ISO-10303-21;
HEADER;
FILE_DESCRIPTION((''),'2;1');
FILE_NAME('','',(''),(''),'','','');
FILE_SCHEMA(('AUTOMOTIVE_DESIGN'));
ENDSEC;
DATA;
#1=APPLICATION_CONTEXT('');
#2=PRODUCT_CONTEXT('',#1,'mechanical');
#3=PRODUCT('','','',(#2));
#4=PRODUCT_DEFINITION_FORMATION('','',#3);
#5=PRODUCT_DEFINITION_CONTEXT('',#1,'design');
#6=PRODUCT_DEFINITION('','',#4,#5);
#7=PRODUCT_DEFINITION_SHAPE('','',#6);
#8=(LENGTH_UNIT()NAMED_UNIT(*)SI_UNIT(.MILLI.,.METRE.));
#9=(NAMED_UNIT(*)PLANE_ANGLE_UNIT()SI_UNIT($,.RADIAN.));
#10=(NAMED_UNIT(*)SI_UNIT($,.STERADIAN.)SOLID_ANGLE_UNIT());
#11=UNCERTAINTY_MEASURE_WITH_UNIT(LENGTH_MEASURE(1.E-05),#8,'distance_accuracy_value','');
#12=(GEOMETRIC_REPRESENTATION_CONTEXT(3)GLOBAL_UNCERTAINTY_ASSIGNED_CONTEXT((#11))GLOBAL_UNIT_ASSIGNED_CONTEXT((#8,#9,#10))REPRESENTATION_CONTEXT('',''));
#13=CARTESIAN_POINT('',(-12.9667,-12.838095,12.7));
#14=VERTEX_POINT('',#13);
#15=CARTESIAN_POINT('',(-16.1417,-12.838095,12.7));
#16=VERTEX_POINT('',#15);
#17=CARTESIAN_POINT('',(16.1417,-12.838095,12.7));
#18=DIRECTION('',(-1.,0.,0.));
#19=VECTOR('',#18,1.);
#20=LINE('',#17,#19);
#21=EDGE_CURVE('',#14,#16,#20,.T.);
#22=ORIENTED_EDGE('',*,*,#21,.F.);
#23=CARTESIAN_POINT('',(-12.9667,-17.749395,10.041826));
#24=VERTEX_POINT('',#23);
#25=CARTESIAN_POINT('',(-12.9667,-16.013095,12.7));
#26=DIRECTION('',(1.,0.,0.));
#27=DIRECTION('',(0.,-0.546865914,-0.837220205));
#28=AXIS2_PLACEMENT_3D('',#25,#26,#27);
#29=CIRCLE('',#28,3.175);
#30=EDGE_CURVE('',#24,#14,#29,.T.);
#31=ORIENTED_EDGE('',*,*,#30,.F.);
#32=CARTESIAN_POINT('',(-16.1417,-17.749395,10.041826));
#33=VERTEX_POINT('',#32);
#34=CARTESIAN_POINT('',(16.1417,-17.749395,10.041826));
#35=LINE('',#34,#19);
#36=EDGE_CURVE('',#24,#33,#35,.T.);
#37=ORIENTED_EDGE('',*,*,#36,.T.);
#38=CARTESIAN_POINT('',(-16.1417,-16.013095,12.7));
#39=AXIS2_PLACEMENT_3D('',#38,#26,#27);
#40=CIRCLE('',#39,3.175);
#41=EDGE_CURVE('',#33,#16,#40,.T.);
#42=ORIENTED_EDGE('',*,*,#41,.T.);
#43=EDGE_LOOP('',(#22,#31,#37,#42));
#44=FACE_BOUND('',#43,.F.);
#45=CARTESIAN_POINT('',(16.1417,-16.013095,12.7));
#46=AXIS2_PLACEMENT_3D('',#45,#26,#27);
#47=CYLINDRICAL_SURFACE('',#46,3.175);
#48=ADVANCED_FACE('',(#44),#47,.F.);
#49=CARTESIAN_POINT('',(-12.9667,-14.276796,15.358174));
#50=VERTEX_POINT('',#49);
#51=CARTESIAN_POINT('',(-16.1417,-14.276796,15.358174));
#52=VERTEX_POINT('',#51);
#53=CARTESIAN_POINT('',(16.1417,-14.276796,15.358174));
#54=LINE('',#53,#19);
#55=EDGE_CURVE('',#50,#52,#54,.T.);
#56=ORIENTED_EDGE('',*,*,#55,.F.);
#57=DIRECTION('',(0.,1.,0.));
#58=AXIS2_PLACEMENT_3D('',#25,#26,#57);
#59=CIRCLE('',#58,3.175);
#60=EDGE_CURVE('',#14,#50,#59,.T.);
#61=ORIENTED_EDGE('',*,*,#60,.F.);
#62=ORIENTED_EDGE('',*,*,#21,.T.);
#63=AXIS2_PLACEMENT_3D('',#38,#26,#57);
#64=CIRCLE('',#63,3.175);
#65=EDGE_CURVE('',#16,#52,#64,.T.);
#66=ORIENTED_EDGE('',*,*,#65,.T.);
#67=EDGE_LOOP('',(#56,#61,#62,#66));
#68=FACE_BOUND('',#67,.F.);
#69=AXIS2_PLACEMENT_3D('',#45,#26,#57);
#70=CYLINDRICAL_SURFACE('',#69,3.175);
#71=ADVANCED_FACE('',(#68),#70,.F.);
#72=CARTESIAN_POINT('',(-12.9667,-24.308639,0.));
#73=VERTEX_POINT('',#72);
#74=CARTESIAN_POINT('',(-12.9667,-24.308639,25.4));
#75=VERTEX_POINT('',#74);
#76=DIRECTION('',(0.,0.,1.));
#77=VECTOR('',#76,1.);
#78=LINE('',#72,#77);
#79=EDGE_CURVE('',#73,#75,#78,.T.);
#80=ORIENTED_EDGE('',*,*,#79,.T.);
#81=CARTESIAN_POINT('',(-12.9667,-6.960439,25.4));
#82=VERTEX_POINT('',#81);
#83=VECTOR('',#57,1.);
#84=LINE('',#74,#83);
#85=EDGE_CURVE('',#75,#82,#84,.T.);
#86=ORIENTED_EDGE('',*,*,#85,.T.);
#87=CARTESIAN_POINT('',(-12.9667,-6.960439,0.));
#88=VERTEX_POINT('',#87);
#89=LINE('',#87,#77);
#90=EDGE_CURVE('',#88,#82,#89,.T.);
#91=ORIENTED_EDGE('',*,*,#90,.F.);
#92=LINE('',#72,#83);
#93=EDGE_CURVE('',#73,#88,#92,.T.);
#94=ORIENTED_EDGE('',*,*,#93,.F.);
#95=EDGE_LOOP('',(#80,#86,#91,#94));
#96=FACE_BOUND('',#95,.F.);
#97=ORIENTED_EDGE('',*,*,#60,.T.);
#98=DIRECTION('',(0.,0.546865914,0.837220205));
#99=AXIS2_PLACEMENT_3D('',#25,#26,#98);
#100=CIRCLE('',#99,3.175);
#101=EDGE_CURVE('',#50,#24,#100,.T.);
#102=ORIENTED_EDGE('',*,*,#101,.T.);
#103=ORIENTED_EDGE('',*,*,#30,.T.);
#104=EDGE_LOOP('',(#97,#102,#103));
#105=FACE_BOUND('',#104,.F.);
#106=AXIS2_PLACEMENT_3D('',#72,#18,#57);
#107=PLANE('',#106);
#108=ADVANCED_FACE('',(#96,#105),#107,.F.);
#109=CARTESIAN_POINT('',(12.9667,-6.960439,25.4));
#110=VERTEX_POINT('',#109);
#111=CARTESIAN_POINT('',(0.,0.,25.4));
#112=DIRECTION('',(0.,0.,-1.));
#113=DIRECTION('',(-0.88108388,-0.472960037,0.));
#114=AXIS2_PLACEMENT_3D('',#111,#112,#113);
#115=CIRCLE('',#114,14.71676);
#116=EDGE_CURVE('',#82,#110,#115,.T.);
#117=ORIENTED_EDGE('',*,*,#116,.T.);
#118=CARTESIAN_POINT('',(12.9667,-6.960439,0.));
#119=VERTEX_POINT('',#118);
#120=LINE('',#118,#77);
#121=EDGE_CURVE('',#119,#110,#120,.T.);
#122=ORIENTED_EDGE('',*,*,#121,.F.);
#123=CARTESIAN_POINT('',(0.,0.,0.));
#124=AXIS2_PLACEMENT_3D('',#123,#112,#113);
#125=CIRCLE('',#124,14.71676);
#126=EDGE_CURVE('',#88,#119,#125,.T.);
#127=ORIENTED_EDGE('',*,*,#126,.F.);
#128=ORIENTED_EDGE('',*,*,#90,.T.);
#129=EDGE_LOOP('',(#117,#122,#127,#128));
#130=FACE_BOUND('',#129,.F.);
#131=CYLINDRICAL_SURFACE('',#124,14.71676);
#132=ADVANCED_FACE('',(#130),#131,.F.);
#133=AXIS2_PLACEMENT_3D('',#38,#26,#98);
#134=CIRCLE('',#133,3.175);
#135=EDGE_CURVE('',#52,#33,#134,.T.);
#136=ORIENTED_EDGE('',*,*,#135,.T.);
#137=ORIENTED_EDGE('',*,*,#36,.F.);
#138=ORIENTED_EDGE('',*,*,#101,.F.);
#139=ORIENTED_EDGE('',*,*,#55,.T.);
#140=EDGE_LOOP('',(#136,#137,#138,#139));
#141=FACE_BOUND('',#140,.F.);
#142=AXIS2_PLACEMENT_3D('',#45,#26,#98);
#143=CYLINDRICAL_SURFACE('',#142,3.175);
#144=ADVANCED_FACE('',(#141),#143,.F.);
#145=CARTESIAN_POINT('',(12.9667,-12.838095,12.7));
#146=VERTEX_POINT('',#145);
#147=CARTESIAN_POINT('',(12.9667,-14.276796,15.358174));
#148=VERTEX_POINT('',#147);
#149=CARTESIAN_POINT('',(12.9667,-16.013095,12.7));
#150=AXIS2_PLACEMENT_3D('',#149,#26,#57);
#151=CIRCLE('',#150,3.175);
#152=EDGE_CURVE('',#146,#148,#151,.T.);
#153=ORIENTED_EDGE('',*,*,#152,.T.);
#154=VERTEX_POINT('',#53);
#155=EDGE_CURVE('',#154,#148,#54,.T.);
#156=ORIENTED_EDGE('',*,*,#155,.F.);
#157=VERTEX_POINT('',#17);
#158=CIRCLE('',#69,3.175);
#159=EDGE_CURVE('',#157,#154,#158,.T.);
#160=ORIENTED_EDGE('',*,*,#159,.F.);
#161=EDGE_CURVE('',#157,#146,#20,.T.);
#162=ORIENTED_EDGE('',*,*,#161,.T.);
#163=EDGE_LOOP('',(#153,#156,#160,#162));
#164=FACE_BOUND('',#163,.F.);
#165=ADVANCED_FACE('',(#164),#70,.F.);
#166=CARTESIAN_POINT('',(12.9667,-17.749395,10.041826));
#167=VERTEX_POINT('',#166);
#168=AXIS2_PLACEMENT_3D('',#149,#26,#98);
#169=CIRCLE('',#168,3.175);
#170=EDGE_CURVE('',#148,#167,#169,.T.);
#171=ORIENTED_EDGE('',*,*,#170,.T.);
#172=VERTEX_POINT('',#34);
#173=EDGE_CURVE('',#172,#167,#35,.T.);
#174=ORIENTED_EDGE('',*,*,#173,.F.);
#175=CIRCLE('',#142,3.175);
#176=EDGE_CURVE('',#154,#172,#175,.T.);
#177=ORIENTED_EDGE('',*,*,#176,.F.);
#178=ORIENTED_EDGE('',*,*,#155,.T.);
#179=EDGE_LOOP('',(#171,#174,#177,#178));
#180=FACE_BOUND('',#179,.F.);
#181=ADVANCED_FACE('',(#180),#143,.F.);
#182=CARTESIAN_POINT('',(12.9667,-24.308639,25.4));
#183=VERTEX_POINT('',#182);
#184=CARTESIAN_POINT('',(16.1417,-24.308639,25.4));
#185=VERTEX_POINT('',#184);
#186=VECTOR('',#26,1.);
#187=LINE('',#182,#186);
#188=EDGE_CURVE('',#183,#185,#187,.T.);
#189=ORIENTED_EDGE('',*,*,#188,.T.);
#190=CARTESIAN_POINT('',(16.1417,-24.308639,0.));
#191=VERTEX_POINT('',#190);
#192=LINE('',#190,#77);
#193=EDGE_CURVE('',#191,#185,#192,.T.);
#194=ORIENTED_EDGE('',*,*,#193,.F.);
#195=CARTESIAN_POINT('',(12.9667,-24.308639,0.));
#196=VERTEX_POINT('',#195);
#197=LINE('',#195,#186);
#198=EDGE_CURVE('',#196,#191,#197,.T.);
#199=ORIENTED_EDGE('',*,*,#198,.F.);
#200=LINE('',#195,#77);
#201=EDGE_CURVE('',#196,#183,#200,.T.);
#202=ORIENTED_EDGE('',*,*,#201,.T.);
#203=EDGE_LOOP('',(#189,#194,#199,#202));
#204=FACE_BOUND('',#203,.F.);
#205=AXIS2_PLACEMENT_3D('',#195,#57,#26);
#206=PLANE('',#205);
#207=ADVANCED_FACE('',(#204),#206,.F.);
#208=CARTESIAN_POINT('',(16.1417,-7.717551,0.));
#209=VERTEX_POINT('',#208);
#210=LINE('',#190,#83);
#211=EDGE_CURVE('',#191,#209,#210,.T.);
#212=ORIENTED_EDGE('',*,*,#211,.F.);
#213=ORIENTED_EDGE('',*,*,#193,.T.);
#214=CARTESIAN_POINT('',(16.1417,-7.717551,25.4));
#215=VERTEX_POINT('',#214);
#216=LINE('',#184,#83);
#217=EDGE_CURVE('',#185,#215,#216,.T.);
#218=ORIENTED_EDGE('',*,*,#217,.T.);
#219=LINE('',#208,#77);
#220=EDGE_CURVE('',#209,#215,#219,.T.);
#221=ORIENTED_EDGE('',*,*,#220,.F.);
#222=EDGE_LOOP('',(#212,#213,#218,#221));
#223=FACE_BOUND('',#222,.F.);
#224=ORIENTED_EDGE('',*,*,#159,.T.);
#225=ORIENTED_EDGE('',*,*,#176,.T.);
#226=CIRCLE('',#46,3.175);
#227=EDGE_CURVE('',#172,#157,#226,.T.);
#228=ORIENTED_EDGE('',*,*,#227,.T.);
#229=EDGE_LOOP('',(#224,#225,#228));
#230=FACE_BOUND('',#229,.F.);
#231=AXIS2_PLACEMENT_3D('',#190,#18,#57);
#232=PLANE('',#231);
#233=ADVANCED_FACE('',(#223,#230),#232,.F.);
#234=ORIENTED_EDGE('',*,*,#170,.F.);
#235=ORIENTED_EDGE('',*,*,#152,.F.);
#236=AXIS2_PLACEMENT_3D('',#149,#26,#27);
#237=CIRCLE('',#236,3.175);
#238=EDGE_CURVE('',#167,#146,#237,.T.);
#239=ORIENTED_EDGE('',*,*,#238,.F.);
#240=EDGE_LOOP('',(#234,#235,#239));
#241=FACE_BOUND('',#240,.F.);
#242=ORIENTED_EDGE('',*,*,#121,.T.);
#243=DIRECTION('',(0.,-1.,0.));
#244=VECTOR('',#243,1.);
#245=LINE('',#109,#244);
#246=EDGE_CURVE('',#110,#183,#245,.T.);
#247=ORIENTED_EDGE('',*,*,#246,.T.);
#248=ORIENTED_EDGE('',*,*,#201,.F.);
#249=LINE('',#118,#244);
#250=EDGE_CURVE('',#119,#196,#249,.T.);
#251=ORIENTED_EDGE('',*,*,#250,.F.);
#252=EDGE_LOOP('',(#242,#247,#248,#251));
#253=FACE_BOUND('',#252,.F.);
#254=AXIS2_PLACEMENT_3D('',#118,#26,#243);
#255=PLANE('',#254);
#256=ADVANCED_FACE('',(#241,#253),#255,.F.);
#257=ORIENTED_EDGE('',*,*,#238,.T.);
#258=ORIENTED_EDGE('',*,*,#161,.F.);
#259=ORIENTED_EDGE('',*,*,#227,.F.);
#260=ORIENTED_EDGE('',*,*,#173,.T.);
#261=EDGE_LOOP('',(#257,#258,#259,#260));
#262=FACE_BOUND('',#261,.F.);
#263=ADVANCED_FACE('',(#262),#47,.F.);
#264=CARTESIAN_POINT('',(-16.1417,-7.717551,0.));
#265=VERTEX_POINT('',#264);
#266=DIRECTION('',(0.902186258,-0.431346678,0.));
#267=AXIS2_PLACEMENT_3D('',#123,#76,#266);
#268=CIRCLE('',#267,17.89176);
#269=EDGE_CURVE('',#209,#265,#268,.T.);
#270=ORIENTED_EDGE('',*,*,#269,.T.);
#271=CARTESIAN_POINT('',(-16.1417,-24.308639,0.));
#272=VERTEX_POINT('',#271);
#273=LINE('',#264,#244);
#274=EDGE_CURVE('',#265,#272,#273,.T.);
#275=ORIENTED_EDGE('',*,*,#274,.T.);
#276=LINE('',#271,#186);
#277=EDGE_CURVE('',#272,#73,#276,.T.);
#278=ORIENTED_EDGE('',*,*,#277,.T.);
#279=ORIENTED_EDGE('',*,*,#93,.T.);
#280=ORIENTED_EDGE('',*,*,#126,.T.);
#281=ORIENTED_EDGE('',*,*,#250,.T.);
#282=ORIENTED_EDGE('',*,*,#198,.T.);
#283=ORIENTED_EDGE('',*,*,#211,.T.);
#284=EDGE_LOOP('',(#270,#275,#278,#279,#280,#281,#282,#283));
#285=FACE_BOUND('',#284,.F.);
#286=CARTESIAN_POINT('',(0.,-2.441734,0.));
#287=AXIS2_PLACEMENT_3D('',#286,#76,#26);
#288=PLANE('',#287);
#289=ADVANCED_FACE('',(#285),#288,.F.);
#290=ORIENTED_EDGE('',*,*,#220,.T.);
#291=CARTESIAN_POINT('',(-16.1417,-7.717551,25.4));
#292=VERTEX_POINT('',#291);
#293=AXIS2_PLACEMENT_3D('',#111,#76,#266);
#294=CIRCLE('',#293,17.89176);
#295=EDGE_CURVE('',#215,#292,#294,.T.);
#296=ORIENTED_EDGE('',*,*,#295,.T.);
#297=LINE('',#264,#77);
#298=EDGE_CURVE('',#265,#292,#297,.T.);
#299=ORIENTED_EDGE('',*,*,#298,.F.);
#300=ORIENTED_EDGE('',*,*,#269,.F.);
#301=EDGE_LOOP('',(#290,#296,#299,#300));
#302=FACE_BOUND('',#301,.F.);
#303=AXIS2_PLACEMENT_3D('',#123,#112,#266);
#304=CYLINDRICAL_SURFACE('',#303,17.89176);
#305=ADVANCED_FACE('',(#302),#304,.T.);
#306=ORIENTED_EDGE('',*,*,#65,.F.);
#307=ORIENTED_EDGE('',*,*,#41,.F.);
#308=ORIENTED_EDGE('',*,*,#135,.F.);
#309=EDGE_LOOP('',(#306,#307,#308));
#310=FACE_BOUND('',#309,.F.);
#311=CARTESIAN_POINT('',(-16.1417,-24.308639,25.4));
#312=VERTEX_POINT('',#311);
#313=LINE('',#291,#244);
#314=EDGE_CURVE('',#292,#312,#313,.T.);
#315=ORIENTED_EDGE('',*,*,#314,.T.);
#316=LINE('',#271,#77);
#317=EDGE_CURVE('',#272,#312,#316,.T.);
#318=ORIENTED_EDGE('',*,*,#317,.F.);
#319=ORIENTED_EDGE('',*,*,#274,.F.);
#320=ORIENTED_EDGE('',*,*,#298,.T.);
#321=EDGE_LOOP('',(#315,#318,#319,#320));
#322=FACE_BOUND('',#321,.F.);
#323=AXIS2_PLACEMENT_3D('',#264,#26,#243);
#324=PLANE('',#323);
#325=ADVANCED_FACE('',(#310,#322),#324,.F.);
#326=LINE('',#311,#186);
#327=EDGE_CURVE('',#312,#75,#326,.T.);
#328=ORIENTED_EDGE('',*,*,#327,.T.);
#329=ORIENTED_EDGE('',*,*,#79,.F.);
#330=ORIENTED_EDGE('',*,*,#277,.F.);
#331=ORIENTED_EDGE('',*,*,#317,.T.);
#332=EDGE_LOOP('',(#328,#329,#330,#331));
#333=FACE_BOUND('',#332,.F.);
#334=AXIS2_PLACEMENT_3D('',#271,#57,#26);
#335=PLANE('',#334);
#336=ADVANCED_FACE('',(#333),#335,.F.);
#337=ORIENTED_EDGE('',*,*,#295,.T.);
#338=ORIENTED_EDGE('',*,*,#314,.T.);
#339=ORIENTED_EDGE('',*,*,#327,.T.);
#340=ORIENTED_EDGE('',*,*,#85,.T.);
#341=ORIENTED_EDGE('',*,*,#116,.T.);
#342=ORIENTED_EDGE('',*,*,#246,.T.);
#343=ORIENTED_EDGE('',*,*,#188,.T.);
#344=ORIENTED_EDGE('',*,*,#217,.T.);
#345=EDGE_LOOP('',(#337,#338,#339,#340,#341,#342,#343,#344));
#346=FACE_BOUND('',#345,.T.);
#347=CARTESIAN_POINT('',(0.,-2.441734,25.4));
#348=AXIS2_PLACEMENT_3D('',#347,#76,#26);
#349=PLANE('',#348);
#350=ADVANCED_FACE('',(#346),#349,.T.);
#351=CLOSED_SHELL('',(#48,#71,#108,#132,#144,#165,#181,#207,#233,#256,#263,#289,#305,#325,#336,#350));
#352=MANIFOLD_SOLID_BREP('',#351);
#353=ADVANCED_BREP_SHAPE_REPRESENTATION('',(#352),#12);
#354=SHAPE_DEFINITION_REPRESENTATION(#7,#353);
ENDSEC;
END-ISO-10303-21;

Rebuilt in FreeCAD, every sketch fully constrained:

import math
import FreeCAD as App
import Part
import Sketcher
from FreeCAD import Vector
Q = App.Units.Quantity

doc = App.newDocument("Part")
body = doc.addObject("PartDesign::Body", "Body")

# Sketch on XY plane
sketch1 = body.newObject("Sketcher::SketchObject", "Sketch")
sketch1.AttachmentSupport = (doc.getObject("XY_Plane"), [""])
sketch1.MapMode = "FlatFace"
sketch1.addGeometry(Part.ArcOfCircle(Part.Circle(Vector(0, 0, 0), Vector(0, 0, 1), 14.71676), math.radians(-28.226611), math.radians(208.226611)), False)
sketch1.addGeometry(Part.LineSegment(Vector(12.9667, -6.960439, 0), Vector(12.9667, -24.308639, 0)), False)
sketch1.addGeometry(Part.LineSegment(Vector(12.9667, -24.308639, 0), Vector(16.1417, -24.308639, 0)), False)
sketch1.addGeometry(Part.LineSegment(Vector(16.1417, -24.308639, 0), Vector(16.1417, -7.717551, 0)), False)
sketch1.addGeometry(Part.ArcOfCircle(Part.Circle(Vector(0, 0, 0), Vector(0, 0, 1), 17.89176), math.radians(-25.553054), math.radians(205.553054)), False)
sketch1.addGeometry(Part.LineSegment(Vector(-16.1417, -7.717551, 0), Vector(-16.1417, -24.308639, 0)), False)
sketch1.addGeometry(Part.LineSegment(Vector(-16.1417, -24.308639, 0), Vector(-12.9667, -24.308639, 0)), False)
sketch1.addGeometry(Part.LineSegment(Vector(-12.9667, -24.308639, 0), Vector(-12.9667, -6.960439, 0)), False)
sketch1.addConstraint(Sketcher.Constraint("Coincident", 0, 1, 1, 1))
sketch1.addConstraint(Sketcher.Constraint("Coincident", 1, 2, 2, 1))
sketch1.addConstraint(Sketcher.Constraint("Coincident", 2, 2, 3, 1))
sketch1.addConstraint(Sketcher.Constraint("Coincident", 3, 2, 4, 1))
sketch1.addConstraint(Sketcher.Constraint("Coincident", 4, 2, 5, 1))
sketch1.addConstraint(Sketcher.Constraint("Coincident", 5, 2, 6, 1))
sketch1.addConstraint(Sketcher.Constraint("Coincident", 6, 2, 7, 1))
sketch1.addConstraint(Sketcher.Constraint("Coincident", 7, 2, 0, 2))
sketch1.addConstraint(Sketcher.Constraint("Vertical", 1))
sketch1.addConstraint(Sketcher.Constraint("Horizontal", 2))
sketch1.addConstraint(Sketcher.Constraint("Vertical", 3))
sketch1.addConstraint(Sketcher.Constraint("Vertical", 5))
sketch1.addConstraint(Sketcher.Constraint("Horizontal", 6))
sketch1.addConstraint(Sketcher.Constraint("Vertical", 7))
sketch1.addConstraint(Sketcher.Constraint("Coincident", 0, 3, -1, 1))
sketch1.addConstraint(Sketcher.Constraint("Coincident", 4, 3, -1, 1))
sketch1.addConstraint(Sketcher.Constraint("Symmetric", 2, 2, 5, 2, -2))
sketch1.addConstraint(Sketcher.Constraint("Horizontal", 0, 1, 7, 2))
sketch1.addConstraint(Sketcher.Constraint("Radius", 0, Q("0.5794 in")))
sketch1.addConstraint(Sketcher.Constraint("Radius", 4, Q("0.7044 in")))
sketch1.addConstraint(Sketcher.Constraint("DistanceX", 2, 1, 2, 2, Q("0.125 in")))
sketch1.addConstraint(Sketcher.Constraint("DistanceY", 1, 2, 1, 1, Q("0.683 in")))
sketch1.addConstraint(Sketcher.Constraint("DistanceX", 4, 2, 0, 1, Q("1.146 in")))
pad1 = body.newObject("PartDesign::Pad", "Pad")
pad1.Profile = sketch1
pad1.Length = Q("1 in")

# Sketch on YZ plane
sketch2 = body.newObject("Sketcher::SketchObject", "Sketch001")
sketch2.AttachmentSupport = (doc.getObject("YZ_Plane"), [""])
sketch2.MapMode = "FlatFace"
sketch2.AttachmentOffset = App.Placement(Vector(0, 0, 0.6355 * 25.4), App.Rotation())
sketch2.addGeometry(Part.ArcOfCircle(Part.Circle(Vector(-16.013095, 12.7, 0), Vector(0, 0, 1), 3.175), math.radians(56.847734), math.radians(236.847734)), False)
sketch2.addGeometry(Part.ArcOfCircle(Part.Circle(Vector(-16.013095, 12.7, 0), Vector(0, 0, 1), 3.175), math.radians(-123.152266), math.radians(0)), False)
sketch2.addGeometry(Part.ArcOfCircle(Part.Circle(Vector(-16.013095, 12.7, 0), Vector(0, 0, 1), 3.175), math.radians(0), math.radians(56.847734)), False)
sketch2.addConstraint(Sketcher.Constraint("Tangent", 0, 2, 1, 1))
sketch2.addConstraint(Sketcher.Constraint("Tangent", 1, 2, 2, 1))
sketch2.addConstraint(Sketcher.Constraint("Tangent", 2, 2, 0, 1))
sketch2.addConstraint(Sketcher.Constraint("Horizontal", 2, 3, 1, 2))
sketch2.addConstraint(Sketcher.Constraint("Radius", 0, Q("0.125 in")))
sketch2.addConstraint(Sketcher.Constraint("DistanceY", -1, 1, 0, 3, Q("0.5 in")))
sketch2.addConstraint(Sketcher.Constraint("DistanceX", 0, 2, 0, 3, Q("1.736299 mm")))
sketch2.addConstraint(Sketcher.Constraint("DistanceX", 2, 2, 1, 2, Q("1.438701 mm")))
sketch2.addConstraint(Sketcher.Constraint("DistanceX", 0, 3, -1, 1, Q("16.013095 mm")))
pocket1 = body.newObject("PartDesign::Pocket", "Pocket")
pocket1.Profile = sketch2
pocket1.Length = Q("2.5 in")

doc.recompute()
